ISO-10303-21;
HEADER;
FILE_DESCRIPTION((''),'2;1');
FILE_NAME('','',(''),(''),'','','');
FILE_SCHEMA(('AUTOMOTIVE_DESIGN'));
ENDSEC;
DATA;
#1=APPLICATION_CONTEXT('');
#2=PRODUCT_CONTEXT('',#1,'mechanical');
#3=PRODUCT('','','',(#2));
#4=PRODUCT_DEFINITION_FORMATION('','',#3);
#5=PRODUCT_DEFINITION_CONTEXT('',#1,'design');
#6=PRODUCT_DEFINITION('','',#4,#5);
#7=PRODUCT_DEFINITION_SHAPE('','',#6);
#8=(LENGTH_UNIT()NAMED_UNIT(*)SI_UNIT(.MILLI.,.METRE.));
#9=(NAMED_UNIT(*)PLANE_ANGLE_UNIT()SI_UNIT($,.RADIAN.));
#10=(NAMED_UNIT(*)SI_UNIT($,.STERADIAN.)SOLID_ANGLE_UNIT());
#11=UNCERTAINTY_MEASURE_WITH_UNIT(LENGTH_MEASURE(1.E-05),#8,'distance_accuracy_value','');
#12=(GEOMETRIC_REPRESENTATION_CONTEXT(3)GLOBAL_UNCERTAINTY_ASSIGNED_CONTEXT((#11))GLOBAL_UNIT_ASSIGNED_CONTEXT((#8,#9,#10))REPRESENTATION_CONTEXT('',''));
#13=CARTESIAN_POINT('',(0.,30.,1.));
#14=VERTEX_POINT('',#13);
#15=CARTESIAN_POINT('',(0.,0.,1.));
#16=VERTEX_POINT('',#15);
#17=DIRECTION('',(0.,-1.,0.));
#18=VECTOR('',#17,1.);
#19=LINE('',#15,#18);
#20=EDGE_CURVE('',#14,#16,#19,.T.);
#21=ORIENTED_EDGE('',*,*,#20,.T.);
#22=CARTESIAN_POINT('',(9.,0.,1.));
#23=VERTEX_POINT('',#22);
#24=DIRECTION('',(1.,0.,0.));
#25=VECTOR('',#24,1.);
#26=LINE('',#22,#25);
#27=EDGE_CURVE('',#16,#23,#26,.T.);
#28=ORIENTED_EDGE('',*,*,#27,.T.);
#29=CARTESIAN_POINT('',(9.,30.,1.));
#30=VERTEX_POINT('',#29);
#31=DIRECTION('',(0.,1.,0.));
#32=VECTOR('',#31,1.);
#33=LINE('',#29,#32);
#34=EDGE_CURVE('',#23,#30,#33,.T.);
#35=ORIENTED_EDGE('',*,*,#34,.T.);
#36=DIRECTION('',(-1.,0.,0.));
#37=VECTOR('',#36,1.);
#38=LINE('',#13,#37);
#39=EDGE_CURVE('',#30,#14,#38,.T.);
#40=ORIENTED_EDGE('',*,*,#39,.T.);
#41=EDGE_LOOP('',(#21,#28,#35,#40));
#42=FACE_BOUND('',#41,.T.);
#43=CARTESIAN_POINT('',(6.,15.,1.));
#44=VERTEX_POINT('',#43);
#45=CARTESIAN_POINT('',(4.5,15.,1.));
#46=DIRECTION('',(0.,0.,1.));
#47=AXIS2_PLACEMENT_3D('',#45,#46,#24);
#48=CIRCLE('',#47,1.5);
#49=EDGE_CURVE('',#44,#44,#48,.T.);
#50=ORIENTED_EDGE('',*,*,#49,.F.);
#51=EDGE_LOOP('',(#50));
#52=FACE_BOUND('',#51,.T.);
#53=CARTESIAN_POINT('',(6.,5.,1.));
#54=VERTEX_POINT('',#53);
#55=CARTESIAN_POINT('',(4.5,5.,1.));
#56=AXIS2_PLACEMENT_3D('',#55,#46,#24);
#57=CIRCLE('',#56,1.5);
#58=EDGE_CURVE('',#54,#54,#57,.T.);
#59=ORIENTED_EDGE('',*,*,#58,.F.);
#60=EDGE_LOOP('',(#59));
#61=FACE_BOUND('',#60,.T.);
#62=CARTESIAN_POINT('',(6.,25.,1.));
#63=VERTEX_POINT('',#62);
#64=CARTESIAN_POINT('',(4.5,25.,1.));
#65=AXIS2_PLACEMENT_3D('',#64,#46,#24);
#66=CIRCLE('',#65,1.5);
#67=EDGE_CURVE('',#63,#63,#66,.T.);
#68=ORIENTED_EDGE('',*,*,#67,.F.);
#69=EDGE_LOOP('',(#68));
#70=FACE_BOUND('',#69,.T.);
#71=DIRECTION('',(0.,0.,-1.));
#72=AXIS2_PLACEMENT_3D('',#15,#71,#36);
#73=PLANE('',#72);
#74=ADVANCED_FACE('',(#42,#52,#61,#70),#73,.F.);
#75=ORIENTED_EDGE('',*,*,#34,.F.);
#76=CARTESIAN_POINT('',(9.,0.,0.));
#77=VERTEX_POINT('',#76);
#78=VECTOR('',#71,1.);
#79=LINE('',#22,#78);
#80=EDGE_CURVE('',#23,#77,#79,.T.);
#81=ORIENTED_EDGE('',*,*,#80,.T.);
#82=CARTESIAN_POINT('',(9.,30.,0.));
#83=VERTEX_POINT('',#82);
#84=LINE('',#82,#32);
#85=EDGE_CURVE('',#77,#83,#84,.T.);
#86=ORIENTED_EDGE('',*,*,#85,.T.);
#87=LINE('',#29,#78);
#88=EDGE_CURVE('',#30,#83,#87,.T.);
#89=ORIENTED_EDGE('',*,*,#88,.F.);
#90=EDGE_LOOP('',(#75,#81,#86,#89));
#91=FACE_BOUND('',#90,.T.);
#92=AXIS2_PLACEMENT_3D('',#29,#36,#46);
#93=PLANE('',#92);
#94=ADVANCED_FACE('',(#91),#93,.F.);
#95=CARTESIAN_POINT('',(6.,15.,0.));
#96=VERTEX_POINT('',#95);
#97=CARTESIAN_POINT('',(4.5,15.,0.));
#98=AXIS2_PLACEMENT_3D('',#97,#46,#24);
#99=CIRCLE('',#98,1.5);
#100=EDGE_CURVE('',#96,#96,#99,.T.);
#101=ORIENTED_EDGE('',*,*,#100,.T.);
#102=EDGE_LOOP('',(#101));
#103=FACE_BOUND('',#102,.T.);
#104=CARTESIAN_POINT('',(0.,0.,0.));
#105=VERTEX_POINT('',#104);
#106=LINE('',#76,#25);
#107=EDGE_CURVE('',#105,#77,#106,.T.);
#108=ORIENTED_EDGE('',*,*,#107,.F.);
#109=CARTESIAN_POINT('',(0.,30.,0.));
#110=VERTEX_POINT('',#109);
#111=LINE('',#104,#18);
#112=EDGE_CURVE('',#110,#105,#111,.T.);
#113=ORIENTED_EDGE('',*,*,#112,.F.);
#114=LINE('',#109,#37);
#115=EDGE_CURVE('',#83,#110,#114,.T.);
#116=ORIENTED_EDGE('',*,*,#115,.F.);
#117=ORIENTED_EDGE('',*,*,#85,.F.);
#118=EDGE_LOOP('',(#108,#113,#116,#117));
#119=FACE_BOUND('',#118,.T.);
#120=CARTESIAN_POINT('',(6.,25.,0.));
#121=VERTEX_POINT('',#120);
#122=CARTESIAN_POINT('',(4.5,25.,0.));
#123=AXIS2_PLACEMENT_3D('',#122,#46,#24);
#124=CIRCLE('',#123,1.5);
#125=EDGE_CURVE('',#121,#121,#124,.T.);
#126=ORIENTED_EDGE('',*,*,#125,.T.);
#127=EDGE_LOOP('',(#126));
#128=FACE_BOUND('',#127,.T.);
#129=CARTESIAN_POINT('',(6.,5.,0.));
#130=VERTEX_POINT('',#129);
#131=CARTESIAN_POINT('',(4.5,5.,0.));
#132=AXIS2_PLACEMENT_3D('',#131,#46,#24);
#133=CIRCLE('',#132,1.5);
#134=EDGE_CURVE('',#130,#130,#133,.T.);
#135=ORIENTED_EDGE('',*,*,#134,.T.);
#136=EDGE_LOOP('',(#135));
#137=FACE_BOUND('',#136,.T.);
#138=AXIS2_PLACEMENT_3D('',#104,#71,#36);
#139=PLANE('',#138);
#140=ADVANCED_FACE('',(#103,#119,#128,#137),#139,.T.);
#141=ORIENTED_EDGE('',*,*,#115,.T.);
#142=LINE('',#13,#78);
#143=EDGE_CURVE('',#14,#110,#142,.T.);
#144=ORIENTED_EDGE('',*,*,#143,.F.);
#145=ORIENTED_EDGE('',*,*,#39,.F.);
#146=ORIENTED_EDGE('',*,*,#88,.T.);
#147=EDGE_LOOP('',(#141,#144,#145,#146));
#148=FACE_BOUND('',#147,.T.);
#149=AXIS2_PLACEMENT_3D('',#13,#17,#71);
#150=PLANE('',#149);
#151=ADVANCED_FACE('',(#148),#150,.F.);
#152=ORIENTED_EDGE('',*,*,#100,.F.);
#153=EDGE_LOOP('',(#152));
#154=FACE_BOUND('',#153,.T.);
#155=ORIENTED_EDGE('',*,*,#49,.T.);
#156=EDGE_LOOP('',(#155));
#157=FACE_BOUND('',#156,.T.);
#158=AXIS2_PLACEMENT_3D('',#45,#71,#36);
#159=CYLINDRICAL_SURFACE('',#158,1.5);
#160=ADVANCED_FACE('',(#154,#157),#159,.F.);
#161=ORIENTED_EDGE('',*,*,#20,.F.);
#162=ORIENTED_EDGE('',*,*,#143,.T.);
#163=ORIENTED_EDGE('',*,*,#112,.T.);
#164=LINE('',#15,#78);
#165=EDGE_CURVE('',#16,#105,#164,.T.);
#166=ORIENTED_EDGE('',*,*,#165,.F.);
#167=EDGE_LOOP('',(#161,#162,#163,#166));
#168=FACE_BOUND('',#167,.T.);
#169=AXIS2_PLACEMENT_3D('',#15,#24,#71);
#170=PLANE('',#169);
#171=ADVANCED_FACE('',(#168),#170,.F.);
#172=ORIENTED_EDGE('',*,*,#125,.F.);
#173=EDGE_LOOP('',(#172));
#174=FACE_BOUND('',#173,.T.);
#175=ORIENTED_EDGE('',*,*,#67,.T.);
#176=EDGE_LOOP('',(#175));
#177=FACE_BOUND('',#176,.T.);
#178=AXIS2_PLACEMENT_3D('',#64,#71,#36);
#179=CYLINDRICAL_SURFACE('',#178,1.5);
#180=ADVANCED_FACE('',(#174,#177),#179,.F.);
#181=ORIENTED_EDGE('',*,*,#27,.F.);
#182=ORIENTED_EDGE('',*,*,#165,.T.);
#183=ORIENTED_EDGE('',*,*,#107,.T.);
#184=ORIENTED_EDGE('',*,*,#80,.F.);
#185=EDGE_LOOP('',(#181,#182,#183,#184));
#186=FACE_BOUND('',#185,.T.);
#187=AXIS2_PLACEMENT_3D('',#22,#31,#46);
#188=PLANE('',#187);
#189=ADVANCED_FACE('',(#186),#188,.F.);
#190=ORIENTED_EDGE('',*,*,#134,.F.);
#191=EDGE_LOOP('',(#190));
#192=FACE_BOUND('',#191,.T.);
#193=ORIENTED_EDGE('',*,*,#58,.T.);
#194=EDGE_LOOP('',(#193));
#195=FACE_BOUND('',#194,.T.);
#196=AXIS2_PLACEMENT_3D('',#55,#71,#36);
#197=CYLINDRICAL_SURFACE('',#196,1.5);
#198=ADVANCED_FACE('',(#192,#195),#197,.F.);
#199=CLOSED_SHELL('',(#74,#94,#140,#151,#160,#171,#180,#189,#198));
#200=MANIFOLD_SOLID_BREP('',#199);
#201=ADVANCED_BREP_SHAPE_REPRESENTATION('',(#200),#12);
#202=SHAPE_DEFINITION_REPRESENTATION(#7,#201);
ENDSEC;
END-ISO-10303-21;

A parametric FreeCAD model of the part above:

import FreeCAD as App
import Part
import Sketcher
Q = App.Units.Quantity


def add_polygon(sketch, points):
    """Adds a closed chain of lines whose ends are joined by coincident constraints."""
    first, n = sketch.GeometryCount, len(points)
    for a, b in zip(points, points[1:] + points[:1]):
        sketch.addGeometry(Part.LineSegment(App.Vector(*a, 0), App.Vector(*b, 0)), False)
    for i in range(n):
        sketch.addConstraint(Sketcher.Constraint("Coincident", first + i, 2, first + (i + 1) % n, 1))

doc = App.newDocument("Part")
body = doc.addObject("PartDesign::Body", "Body")

sketch1 = doc.addObject("Sketcher::SketchObject", "Sketch")
body.addObject(sketch1)
sketch1.AttachmentSupport = (doc.XY_Plane, [""])
sketch1.MapMode = "FlatFace"
add_polygon(sketch1, [(0, 30), (0, 0), (9, 0), (9, 30)])
sketch1.addGeometry(Part.Circle(App.Vector(4.5, 5, 0), App.Vector(0, 0, 1), 1.5), False)
sketch1.addGeometry(Part.Circle(App.Vector(4.5, 15, 0), App.Vector(0, 0, 1), 1.5), False)
sketch1.addGeometry(Part.Circle(App.Vector(4.5, 25, 0), App.Vector(0, 0, 1), 1.5), False)
sketch1.addConstraint([
    Sketcher.Constraint("Vertical", 0),
    Sketcher.Constraint("Horizontal", 1),
    Sketcher.Constraint("Vertical", 2),
    Sketcher.Constraint("Horizontal", 3),
    Sketcher.Constraint("Coincident", 0, 2, -1, 1),
    Sketcher.Constraint("Equal", 4, 5),
    Sketcher.Constraint("Equal", 5, 6),
    Sketcher.Constraint("Vertical", 4, 3, 5, 3),
    Sketcher.Constraint("Vertical", 5, 3, 6, 3),
    Sketcher.Constraint("Diameter", 4, Q("3 mm")),
    Sketcher.Constraint("DistanceX", 1, 1, 1, 2, Q("9 mm")),
    Sketcher.Constraint("DistanceY", 0, 2, 0, 1, Q("30 mm")),
    Sketcher.Constraint("DistanceY", -1, 1, 4, 3, Q("5 mm")),
    Sketcher.Constraint("DistanceY", -1, 1, 5, 3, Q("15 mm")),
    Sketcher.Constraint("DistanceY", -1, 1, 6, 3, Q("25 mm")),
    Sketcher.Constraint("DistanceX", -1, 1, 4, 3, Q("4.5 mm")),
])
pad1 = doc.addObject("PartDesign::Pad", "Pad")
body.addObject(pad1)
pad1.Profile = sketch1
pad1.Length = 1

doc.recompute()
